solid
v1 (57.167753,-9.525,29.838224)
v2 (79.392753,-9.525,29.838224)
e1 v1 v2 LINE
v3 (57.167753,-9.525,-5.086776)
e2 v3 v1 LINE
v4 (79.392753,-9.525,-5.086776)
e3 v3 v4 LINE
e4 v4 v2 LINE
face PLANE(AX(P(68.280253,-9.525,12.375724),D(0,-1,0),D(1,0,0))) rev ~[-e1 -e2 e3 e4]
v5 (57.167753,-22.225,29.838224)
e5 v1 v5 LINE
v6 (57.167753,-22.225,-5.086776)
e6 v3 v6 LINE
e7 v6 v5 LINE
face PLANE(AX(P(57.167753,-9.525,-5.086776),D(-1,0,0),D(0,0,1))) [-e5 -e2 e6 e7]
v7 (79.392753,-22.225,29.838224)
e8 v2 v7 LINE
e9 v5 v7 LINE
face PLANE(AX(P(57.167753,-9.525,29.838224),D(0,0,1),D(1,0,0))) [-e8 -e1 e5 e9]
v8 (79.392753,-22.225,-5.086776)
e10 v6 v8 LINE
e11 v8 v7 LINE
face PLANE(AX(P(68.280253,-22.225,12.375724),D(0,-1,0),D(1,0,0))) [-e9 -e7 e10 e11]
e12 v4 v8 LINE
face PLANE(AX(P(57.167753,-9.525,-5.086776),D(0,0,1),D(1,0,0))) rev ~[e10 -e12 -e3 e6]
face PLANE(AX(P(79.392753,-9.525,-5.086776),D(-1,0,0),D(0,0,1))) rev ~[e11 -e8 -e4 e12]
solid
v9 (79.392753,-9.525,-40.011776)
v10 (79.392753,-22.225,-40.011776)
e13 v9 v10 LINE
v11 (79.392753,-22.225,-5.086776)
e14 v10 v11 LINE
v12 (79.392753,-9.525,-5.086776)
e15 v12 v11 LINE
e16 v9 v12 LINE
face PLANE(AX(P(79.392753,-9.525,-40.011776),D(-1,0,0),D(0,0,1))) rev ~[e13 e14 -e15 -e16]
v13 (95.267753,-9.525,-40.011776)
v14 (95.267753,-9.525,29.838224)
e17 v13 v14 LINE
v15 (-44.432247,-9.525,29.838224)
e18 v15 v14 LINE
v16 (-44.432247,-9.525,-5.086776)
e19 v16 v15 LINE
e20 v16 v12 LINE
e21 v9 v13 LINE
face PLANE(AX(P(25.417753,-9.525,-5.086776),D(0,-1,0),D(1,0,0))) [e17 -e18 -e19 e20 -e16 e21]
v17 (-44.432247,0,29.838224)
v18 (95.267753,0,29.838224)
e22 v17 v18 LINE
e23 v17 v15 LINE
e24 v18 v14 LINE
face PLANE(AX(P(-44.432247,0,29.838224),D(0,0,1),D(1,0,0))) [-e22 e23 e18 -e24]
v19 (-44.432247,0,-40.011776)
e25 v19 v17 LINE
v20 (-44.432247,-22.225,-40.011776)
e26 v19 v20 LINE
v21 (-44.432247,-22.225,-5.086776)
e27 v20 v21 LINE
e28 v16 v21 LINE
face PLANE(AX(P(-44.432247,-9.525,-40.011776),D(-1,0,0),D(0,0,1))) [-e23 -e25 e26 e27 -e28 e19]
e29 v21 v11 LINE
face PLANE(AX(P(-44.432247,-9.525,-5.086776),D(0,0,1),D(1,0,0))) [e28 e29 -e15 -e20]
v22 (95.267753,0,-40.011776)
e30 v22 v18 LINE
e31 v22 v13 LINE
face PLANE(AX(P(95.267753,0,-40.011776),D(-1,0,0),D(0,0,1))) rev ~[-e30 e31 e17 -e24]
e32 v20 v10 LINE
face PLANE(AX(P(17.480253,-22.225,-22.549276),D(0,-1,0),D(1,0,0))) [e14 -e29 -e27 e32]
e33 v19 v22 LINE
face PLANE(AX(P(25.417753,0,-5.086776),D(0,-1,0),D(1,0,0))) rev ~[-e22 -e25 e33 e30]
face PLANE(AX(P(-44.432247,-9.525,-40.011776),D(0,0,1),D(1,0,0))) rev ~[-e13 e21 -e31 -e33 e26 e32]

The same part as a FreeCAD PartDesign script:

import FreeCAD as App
import Part
import Sketcher

V = App.Vector
Q = App.Units.Quantity

doc = App.newDocument("Part")
params = doc.addObject("Spreadsheet::Sheet", "Params")
for row, (alias, value) in enumerate([
    ("sketch1_width", "5.5 in"),
    ("sketch1_height", "2.75 in"),
    ("pad1_length", "0.375 in"),
    ("sketch2_width", "4.875 in"),
    ("sketch2_height", "1.375 in"),
    ("pad2_length", "0.5 in"),
    ("sketch3_width", "0.875 in"),
    ("sketch3_height", "1.375 in"),
    ("pad3_length", "0.5 in"),
], start=1):
    params.set(f"A{row}", alias)
    params.set(f"B{row}", "=" + value)
    params.setAlias(f"B{row}", alias)

body = doc.addObject("PartDesign::Body", "Body")

sketch1 = doc.addObject("Sketcher::SketchObject", "Sketch")
body.addObject(sketch1)
sketch1.AttachmentSupport = (doc.XZ_Plane, [""])
sketch1.MapMode = "FlatFace"
sketch1.addGeometry([
    Part.LineSegment(V(-44, 30, 0), V(-44, -40, 0)),
    Part.LineSegment(V(-44, -40, 0), V(95, -40, 0)),
    Part.LineSegment(V(95, -40, 0), V(95, 30, 0)),
    Part.LineSegment(V(95, 30, 0), V(-44, 30, 0)),
], False)
sketch1.addConstraint([
    Sketcher.Constraint("Coincident", 0, 2, 1, 1),
    Sketcher.Constraint("Coincident", 1, 2, 2, 1),
    Sketcher.Constraint("Coincident", 2, 2, 3, 1),
    Sketcher.Constraint("Coincident", 3, 2, 0, 1),
    Sketcher.Constraint("Vertical", 0),
    Sketcher.Constraint("Horizontal", 1),
    Sketcher.Constraint("Vertical", 2),
    Sketcher.Constraint("Horizontal", 3),
    Sketcher.Constraint("DistanceX", 1, 1, 1, 2, Q("5.5 in")),
    Sketcher.Constraint("DistanceY", 0, 2, 0, 1, Q("2.75 in")),
    Sketcher.Constraint("DistanceX", 0, 2, -1, 1, 44.432247),
    Sketcher.Constraint("DistanceY", 0, 2, -1, 1, 40.011776),
])
sketch1.setExpression("Constraints[8]", "Params.sketch1_width")
sketch1.setExpression("Constraints[9]", "Params.sketch1_height")
pad1 = doc.addObject("PartDesign::Pad", "Pad")
body.addObject(pad1)
pad1.Profile = sketch1
pad1.setExpression("Length", "Params.pad1_length")

sketch2 = doc.addObject("Sketcher::SketchObject", "Sketch001")
body.addObject(sketch2)
sketch2.AttachmentSupport = (doc.XZ_Plane, [""])
sketch2.MapMode = "FlatFace"
sketch2.AttachmentOffset = App.Placement(V(0, 0, 0.375 * 25.4), App.Rotation())
sketch2.addGeometry([
    Part.LineSegment(V(-44, -5, 0), V(-44, -40, 0)),
    Part.LineSegment(V(-44, -40, 0), V(79, -40, 0)),
    Part.LineSegment(V(79, -40, 0), V(79, -5, 0)),
    Part.LineSegment(V(79, -5, 0), V(-44, -5, 0)),
], False)
sketch2.addConstraint([
    Sketcher.Constraint("Coincident", 0, 2, 1, 1),
    Sketcher.Constraint("Coincident", 1, 2, 2, 1),
    Sketcher.Constraint("Coincident", 2, 2, 3, 1),
    Sketcher.Constraint("Coincident", 3, 2, 0, 1),
    Sketcher.Constraint("Vertical", 0),
    Sketcher.Constraint("Horizontal", 1),
    Sketcher.Constraint("Vertical", 2),
    Sketcher.Constraint("Horizontal", 3),
    Sketcher.Constraint("DistanceX", 1, 1, 1, 2, Q("4.875 in")),
    Sketcher.Constraint("DistanceY", 0, 2, 0, 1, Q("1.375 in")),
    Sketcher.Constraint("DistanceX", 0, 2, -1, 1, 44.432247),
    Sketcher.Constraint("DistanceY", 0, 2, -1, 1, 40.011776),
])
sketch2.setExpression("Constraints[8]", "Params.sketch2_width")
sketch2.setExpression("Constraints[9]", "Params.sketch2_height")
pad2 = doc.addObject("PartDesign::Pad", "Pad001")
body.addObject(pad2)
pad2.Profile = sketch2
pad2.setExpression("Length", "Params.pad2_length")
body2 = doc.addObject("PartDesign::Body", "Body001")

sketch3 = doc.addObject("Sketcher::SketchObject", "Sketch002")
body2.addObject(sketch3)
sketch3.AttachmentSupport = (doc.getObject("XZ_Plane001"), [""])
sketch3.MapMode = "FlatFace"
sketch3.AttachmentOffset = App.Placement(V(0, 0, 0.375 * 25.4), App.Rotation())
sketch3.addGeometry([
    Part.LineSegment(V(57, 30, 0), V(57, -5, 0)),
    Part.LineSegment(V(57, -5, 0), V(79, -5, 0)),
    Part.LineSegment(V(79, -5, 0), V(79, 30, 0)),
    Part.LineSegment(V(79, 30, 0), V(57, 30, 0)),
], False)
sketch3.addConstraint([
    Sketcher.Constraint("Coincident", 0, 2, 1, 1),
    Sketcher.Constraint("Coincident", 1, 2, 2, 1),
    Sketcher.Constraint("Coincident", 2, 2, 3, 1),
    Sketcher.Constraint("Coincident", 3, 2, 0, 1),
    Sketcher.Constraint("Vertical", 0),
    Sketcher.Constraint("Horizontal", 1),
    Sketcher.Constraint("Vertical", 2),
    Sketcher.Constraint("Horizontal", 3),
    Sketcher.Constraint("DistanceX", 1, 1, 1, 2, Q("0.875 in")),
    Sketcher.Constraint("DistanceY", 0, 2, 0, 1, Q("1.375 in")),
    Sketcher.Constraint("DistanceX", -1, 1, 0, 2, 57.167753),
    Sketcher.Constraint("DistanceY", 0, 2, -1, 1, 5.086776),
])
sketch3.setExpression("Constraints[8]", "Params.sketch3_width")
sketch3.setExpression("Constraints[9]", "Params.sketch3_height")
pad3 = doc.addObject("PartDesign::Pad", "Pad002")
body2.addObject(pad3)
pad3.Profile = sketch3
pad3.setExpression("Length", "Params.pad3_length")

doc.recompute()
